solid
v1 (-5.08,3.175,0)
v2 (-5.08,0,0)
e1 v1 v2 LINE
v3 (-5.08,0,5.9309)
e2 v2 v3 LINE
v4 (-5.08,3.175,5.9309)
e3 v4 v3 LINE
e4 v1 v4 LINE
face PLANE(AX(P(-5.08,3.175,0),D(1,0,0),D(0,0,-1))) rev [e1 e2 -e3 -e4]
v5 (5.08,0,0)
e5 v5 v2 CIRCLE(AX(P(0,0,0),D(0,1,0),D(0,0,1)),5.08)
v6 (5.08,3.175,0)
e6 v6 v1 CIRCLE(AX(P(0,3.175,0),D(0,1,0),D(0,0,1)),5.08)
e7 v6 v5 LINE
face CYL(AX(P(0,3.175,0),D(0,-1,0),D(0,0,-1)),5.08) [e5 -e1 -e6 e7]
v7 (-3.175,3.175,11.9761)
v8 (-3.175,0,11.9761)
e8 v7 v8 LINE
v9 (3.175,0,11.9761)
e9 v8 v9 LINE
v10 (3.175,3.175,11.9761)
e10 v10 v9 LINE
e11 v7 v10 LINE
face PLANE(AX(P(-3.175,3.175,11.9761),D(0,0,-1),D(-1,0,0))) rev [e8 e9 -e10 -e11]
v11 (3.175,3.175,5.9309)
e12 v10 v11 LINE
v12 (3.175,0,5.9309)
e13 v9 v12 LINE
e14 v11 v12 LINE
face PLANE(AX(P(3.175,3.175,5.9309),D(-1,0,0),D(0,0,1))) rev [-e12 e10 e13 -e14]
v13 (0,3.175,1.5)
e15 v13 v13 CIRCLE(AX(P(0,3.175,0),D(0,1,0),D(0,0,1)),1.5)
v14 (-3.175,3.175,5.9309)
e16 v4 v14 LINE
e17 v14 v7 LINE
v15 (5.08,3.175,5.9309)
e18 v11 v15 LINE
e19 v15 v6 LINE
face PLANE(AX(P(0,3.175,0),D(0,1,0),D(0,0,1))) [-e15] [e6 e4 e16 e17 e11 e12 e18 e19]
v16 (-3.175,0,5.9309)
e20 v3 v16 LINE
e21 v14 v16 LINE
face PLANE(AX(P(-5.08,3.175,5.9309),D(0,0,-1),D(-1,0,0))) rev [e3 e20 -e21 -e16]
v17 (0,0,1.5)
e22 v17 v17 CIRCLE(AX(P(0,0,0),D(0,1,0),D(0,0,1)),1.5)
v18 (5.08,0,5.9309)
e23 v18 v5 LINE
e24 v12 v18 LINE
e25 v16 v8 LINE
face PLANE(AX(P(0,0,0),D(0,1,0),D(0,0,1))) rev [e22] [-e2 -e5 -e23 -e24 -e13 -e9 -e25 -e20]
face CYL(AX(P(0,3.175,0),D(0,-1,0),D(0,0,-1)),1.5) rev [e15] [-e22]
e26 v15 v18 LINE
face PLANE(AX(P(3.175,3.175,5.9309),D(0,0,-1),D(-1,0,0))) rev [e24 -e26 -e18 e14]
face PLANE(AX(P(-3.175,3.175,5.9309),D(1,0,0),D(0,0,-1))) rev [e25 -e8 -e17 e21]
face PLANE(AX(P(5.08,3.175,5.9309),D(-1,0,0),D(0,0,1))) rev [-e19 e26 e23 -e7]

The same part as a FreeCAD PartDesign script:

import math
import FreeCAD as App
import Part
import Sketcher

V = App.Vector
Q = App.Units.Quantity

doc = App.newDocument("Part")
params = doc.addObject("Spreadsheet::Sheet", "Params")
for row, (alias, value) in enumerate([
    ("sketch1_radius", "0.2 in"),
    ("sketch1_width", "0.25 in"),
    ("sketch1_height", "0.238 in"),
    ("pad1_length", "0.125 in"),
], start=1):
    params.set(f"A{row}", alias)
    params.set(f"B{row}", "=" + value)
    params.setAlias(f"B{row}", alias)

body = doc.addObject("PartDesign::Body", "Body")

# Sketch on XZ plane
sketch1 = body.newObject("Sketcher::SketchObject", "Sketch")
sketch1.AttachmentSupport = (doc.getObject("XZ_Plane"), [""])
sketch1.MapMode = "FlatFace"
sketch1.addGeometry(Part.LineSegment(V(-5.1, 0, 0), V(-5.1, 5.9, 0)), False)
sketch1.addGeometry(Part.LineSegment(V(-5.1, 5.9, 0), V(-3.2, 5.9, 0)), False)
sketch1.addGeometry(Part.LineSegment(V(-3.2, 5.9, 0), V(-3.2, 12, 0)), False)
sketch1.addGeometry(Part.LineSegment(V(-3.2, 12, 0), V(3.2, 12, 0)), False)
sketch1.addGeometry(Part.LineSegment(V(3.2, 12, 0), V(3.2, 5.9, 0)), False)
sketch1.addGeometry(Part.LineSegment(V(3.2, 5.9, 0), V(5.1, 5.9, 0)), False)
sketch1.addGeometry(Part.LineSegment(V(5.1, 5.9, 0), V(5.1, 0, 0)), False)
sketch1.addGeometry(Part.ArcOfCircle(Part.Circle(V(0, 0, 0), V(0, 0, 1), 5.1), math.radians(180), math.radians(360)), False)
sketch1.addGeometry(Part.Circle(V(0, 0, 0), V(0, 0, 1), 1.5), False)
sketch1.addConstraint(Sketcher.Constraint("Coincident", 0, 2, 1, 1))
sketch1.addConstraint(Sketcher.Constraint("Coincident", 1, 2, 2, 1))
sketch1.addConstraint(Sketcher.Constraint("Coincident", 2, 2, 3, 1))
sketch1.addConstraint(Sketcher.Constraint("Coincident", 3, 2, 4, 1))
sketch1.addConstraint(Sketcher.Constraint("Coincident", 4, 2, 5, 1))
sketch1.addConstraint(Sketcher.Constraint("Coincident", 5, 2, 6, 1))
sketch1.addConstraint(Sketcher.Constraint("Tangent", 6, 2, 7, 2))
sketch1.addConstraint(Sketcher.Constraint("Tangent", 7, 1, 0, 1))
sketch1.addConstraint(Sketcher.Constraint("Vertical", 0))
sketch1.addConstraint(Sketcher.Constraint("Horizontal", 1))
sketch1.addConstraint(Sketcher.Constraint("Vertical", 2))
sketch1.addConstraint(Sketcher.Constraint("Horizontal", 3))
sketch1.addConstraint(Sketcher.Constraint("Vertical", 4))
sketch1.addConstraint(Sketcher.Constraint("Horizontal", 5))
sketch1.addConstraint(Sketcher.Constraint("Vertical", 6))
sketch1.addConstraint(Sketcher.Constraint("Coincident", 7, 3, -1, 1))
sketch1.addConstraint(Sketcher.Constraint("Coincident", 8, 3, -1, 1))
sketch1.addConstraint(Sketcher.Constraint("Symmetric", 1, 2, 4, 2, -2))
sketch1.addConstraint(Sketcher.Constraint("Radius", 7, Q("0.2 in")))
sketch1.addConstraint(Sketcher.Constraint("DistanceX", 3, 1, 3, 2, Q("0.25 in")))
sketch1.addConstraint(Sketcher.Constraint("Diameter", 8, Q("3 mm")))
sketch1.addConstraint(Sketcher.Constraint("DistanceY", 2, 1, 2, 2, Q("0.238 in")))
sketch1.addConstraint(Sketcher.Constraint("DistanceY", 0, 1, 0, 2, Q("0.2335 in")))
sketch1.setExpression("Constraints[18]", "Params.sketch1_radius")
sketch1.setExpression("Constraints[19]", "Params.sketch1_width")
sketch1.setExpression("Constraints[21]", "Params.sketch1_height")
pad1 = body.newObject("PartDesign::Pad", "Pad")
pad1.Profile = sketch1
pad1.setExpression("Length", "Params.pad1_length")
pad1.Reversed = True

doc.recompute()
